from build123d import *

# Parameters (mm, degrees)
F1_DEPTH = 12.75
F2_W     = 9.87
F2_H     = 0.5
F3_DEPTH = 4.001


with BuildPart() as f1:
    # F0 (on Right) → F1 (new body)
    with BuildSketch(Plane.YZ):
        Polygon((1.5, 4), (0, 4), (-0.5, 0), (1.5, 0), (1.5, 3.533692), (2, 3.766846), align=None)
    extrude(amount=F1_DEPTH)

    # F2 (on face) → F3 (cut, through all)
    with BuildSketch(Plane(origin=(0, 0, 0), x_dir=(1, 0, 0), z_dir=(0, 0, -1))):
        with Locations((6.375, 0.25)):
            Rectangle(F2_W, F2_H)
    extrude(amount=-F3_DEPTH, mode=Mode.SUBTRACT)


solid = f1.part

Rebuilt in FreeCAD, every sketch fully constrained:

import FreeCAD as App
import Part
import Sketcher
Q = App.Units.Quantity

doc = App.newDocument("Part")
body = doc.addObject("PartDesign::Body", "Body")

# Sketch on YZ plane
sketch1 = body.newObject("Sketcher::SketchObject", "Sketch")
sketch1.AttachmentSupport = (doc.getObject("YZ_Plane"), [""])
sketch1.MapMode = "FlatFace"
sketch1.addGeometry(Part.LineSegment(App.Vector(1.5, 4, 0), App.Vector(0, 4, 0)), False)
sketch1.addGeometry(Part.LineSegment(App.Vector(0, 4, 0), App.Vector(-0.5, 0, 0)), False)
sketch1.addGeometry(Part.LineSegment(App.Vector(-0.5, 0, 0), App.Vector(1.5, 0, 0)), False)
sketch1.addGeometry(Part.LineSegment(App.Vector(1.5, 0, 0), App.Vector(1.5, 3.5, 0)), False)
sketch1.addGeometry(Part.LineSegment(App.Vector(1.5, 3.5, 0), App.Vector(2, 3.8, 0)), False)
sketch1.addGeometry(Part.LineSegment(App.Vector(2, 3.8, 0), App.Vector(1.5, 4, 0)), False)
sketch1.addConstraint(Sketcher.Constraint("Coincident", 0, 2, 1, 1))
sketch1.addConstraint(Sketcher.Constraint("Coincident", 1, 2, 2, 1))
sketch1.addConstraint(Sketcher.Constraint("Coincident", 2, 2, 3, 1))
sketch1.addConstraint(Sketcher.Constraint("Coincident", 3, 2, 4, 1))
sketch1.addConstraint(Sketcher.Constraint("Coincident", 4, 2, 5, 1))
sketch1.addConstraint(Sketcher.Constraint("Coincident", 5, 2, 0, 1))
sketch1.addConstraint(Sketcher.Constraint("Horizontal", 0))
sketch1.addConstraint(Sketcher.Constraint("Horizontal", 2))
sketch1.addConstraint(Sketcher.Constraint("Vertical", 3))
sketch1.addConstraint(Sketcher.Constraint("PointOnObject", 0, 2, -2))
sketch1.addConstraint(Sketcher.Constraint("PointOnObject", 1, 2, -1))
sketch1.addConstraint(Sketcher.Constraint("Vertical", 3, 2, 5, 2))
sketch1.addConstraint(Sketcher.Constraint("Equal", 4, 5))
sketch1.addConstraint(Sketcher.Constraint("DistanceX", 2, 1, 2, 2, Q("2 mm")))
sketch1.addConstraint(Sketcher.Constraint("Angle", 4, Q("25.000016 deg")))
sketch1.addConstraint(Sketcher.Constraint("DistanceX", 0, 2, 0, 1, Q("1.5 mm")))
sketch1.addConstraint(Sketcher.Constraint("DistanceY", -1, 1, 0, 2, Q("4 mm")))
sketch1.addConstraint(Sketcher.Constraint("DistanceX", -1, 1, 4, 2, Q("2 mm")))
pad1 = body.newObject("PartDesign::Pad", "Pad")
pad1.Profile = sketch1
pad1.Length = 12.75

# Sketch on XY plane
sketch2 = body.newObject("Sketcher::SketchObject", "Sketch001")
sketch2.AttachmentSupport = (doc.getObject("XY_Plane"), [""])
sketch2.MapMode = "FlatFace"
sketch2.addGeometry(Part.LineSegment(App.Vector(1.4, -0.5, 0), App.Vector(1.4, 0, 0)), False)
sketch2.addGeometry(Part.LineSegment(App.Vector(1.4, 0, 0), App.Vector(11.3, 0, 0)), False)
sketch2.addGeometry(Part.LineSegment(App.Vector(11.3, 0, 0), App.Vector(11.3, -0.5, 0)), False)
sketch2.addGeometry(Part.LineSegment(App.Vector(11.3, -0.5, 0), App.Vector(1.4, -0.5, 0)), False)
sketch2.addConstraint(Sketcher.Constraint("Coincident", 0, 2, 1, 1))
sketch2.addConstraint(Sketcher.Constraint("Coincident", 1, 2, 2, 1))
sketch2.addConstraint(Sketcher.Constraint("Coincident", 2, 2, 3, 1))
sketch2.addConstraint(Sketcher.Constraint("Coincident", 3, 2, 0, 1))
sketch2.addConstraint(Sketcher.Constraint("Vertical", 0))
sketch2.addConstraint(Sketcher.Constraint("Horizontal", 1))
sketch2.addConstraint(Sketcher.Constraint("Vertical", 2))
sketch2.addConstraint(Sketcher.Constraint("Horizontal", 3))
sketch2.addConstraint(Sketcher.Constraint("PointOnObject", 0, 2, -1))
sketch2.addConstraint(Sketcher.Constraint("DistanceY", 0, 1, 0, 2, Q("0.5 mm")))
sketch2.addConstraint(Sketcher.Constraint("DistanceX", 1, 1, 1, 2, Q("9.87 mm")))
sketch2.addConstraint(Sketcher.Constraint("DistanceX", -1, 1, 0, 2, Q("1.44 mm")))
pocket1 = body.newObject("PartDesign::Pocket", "Pocket")
pocket1.Profile = sketch2
pocket1.Type = "ThroughAll"
pocket1.Reversed = True

doc.recompute()
